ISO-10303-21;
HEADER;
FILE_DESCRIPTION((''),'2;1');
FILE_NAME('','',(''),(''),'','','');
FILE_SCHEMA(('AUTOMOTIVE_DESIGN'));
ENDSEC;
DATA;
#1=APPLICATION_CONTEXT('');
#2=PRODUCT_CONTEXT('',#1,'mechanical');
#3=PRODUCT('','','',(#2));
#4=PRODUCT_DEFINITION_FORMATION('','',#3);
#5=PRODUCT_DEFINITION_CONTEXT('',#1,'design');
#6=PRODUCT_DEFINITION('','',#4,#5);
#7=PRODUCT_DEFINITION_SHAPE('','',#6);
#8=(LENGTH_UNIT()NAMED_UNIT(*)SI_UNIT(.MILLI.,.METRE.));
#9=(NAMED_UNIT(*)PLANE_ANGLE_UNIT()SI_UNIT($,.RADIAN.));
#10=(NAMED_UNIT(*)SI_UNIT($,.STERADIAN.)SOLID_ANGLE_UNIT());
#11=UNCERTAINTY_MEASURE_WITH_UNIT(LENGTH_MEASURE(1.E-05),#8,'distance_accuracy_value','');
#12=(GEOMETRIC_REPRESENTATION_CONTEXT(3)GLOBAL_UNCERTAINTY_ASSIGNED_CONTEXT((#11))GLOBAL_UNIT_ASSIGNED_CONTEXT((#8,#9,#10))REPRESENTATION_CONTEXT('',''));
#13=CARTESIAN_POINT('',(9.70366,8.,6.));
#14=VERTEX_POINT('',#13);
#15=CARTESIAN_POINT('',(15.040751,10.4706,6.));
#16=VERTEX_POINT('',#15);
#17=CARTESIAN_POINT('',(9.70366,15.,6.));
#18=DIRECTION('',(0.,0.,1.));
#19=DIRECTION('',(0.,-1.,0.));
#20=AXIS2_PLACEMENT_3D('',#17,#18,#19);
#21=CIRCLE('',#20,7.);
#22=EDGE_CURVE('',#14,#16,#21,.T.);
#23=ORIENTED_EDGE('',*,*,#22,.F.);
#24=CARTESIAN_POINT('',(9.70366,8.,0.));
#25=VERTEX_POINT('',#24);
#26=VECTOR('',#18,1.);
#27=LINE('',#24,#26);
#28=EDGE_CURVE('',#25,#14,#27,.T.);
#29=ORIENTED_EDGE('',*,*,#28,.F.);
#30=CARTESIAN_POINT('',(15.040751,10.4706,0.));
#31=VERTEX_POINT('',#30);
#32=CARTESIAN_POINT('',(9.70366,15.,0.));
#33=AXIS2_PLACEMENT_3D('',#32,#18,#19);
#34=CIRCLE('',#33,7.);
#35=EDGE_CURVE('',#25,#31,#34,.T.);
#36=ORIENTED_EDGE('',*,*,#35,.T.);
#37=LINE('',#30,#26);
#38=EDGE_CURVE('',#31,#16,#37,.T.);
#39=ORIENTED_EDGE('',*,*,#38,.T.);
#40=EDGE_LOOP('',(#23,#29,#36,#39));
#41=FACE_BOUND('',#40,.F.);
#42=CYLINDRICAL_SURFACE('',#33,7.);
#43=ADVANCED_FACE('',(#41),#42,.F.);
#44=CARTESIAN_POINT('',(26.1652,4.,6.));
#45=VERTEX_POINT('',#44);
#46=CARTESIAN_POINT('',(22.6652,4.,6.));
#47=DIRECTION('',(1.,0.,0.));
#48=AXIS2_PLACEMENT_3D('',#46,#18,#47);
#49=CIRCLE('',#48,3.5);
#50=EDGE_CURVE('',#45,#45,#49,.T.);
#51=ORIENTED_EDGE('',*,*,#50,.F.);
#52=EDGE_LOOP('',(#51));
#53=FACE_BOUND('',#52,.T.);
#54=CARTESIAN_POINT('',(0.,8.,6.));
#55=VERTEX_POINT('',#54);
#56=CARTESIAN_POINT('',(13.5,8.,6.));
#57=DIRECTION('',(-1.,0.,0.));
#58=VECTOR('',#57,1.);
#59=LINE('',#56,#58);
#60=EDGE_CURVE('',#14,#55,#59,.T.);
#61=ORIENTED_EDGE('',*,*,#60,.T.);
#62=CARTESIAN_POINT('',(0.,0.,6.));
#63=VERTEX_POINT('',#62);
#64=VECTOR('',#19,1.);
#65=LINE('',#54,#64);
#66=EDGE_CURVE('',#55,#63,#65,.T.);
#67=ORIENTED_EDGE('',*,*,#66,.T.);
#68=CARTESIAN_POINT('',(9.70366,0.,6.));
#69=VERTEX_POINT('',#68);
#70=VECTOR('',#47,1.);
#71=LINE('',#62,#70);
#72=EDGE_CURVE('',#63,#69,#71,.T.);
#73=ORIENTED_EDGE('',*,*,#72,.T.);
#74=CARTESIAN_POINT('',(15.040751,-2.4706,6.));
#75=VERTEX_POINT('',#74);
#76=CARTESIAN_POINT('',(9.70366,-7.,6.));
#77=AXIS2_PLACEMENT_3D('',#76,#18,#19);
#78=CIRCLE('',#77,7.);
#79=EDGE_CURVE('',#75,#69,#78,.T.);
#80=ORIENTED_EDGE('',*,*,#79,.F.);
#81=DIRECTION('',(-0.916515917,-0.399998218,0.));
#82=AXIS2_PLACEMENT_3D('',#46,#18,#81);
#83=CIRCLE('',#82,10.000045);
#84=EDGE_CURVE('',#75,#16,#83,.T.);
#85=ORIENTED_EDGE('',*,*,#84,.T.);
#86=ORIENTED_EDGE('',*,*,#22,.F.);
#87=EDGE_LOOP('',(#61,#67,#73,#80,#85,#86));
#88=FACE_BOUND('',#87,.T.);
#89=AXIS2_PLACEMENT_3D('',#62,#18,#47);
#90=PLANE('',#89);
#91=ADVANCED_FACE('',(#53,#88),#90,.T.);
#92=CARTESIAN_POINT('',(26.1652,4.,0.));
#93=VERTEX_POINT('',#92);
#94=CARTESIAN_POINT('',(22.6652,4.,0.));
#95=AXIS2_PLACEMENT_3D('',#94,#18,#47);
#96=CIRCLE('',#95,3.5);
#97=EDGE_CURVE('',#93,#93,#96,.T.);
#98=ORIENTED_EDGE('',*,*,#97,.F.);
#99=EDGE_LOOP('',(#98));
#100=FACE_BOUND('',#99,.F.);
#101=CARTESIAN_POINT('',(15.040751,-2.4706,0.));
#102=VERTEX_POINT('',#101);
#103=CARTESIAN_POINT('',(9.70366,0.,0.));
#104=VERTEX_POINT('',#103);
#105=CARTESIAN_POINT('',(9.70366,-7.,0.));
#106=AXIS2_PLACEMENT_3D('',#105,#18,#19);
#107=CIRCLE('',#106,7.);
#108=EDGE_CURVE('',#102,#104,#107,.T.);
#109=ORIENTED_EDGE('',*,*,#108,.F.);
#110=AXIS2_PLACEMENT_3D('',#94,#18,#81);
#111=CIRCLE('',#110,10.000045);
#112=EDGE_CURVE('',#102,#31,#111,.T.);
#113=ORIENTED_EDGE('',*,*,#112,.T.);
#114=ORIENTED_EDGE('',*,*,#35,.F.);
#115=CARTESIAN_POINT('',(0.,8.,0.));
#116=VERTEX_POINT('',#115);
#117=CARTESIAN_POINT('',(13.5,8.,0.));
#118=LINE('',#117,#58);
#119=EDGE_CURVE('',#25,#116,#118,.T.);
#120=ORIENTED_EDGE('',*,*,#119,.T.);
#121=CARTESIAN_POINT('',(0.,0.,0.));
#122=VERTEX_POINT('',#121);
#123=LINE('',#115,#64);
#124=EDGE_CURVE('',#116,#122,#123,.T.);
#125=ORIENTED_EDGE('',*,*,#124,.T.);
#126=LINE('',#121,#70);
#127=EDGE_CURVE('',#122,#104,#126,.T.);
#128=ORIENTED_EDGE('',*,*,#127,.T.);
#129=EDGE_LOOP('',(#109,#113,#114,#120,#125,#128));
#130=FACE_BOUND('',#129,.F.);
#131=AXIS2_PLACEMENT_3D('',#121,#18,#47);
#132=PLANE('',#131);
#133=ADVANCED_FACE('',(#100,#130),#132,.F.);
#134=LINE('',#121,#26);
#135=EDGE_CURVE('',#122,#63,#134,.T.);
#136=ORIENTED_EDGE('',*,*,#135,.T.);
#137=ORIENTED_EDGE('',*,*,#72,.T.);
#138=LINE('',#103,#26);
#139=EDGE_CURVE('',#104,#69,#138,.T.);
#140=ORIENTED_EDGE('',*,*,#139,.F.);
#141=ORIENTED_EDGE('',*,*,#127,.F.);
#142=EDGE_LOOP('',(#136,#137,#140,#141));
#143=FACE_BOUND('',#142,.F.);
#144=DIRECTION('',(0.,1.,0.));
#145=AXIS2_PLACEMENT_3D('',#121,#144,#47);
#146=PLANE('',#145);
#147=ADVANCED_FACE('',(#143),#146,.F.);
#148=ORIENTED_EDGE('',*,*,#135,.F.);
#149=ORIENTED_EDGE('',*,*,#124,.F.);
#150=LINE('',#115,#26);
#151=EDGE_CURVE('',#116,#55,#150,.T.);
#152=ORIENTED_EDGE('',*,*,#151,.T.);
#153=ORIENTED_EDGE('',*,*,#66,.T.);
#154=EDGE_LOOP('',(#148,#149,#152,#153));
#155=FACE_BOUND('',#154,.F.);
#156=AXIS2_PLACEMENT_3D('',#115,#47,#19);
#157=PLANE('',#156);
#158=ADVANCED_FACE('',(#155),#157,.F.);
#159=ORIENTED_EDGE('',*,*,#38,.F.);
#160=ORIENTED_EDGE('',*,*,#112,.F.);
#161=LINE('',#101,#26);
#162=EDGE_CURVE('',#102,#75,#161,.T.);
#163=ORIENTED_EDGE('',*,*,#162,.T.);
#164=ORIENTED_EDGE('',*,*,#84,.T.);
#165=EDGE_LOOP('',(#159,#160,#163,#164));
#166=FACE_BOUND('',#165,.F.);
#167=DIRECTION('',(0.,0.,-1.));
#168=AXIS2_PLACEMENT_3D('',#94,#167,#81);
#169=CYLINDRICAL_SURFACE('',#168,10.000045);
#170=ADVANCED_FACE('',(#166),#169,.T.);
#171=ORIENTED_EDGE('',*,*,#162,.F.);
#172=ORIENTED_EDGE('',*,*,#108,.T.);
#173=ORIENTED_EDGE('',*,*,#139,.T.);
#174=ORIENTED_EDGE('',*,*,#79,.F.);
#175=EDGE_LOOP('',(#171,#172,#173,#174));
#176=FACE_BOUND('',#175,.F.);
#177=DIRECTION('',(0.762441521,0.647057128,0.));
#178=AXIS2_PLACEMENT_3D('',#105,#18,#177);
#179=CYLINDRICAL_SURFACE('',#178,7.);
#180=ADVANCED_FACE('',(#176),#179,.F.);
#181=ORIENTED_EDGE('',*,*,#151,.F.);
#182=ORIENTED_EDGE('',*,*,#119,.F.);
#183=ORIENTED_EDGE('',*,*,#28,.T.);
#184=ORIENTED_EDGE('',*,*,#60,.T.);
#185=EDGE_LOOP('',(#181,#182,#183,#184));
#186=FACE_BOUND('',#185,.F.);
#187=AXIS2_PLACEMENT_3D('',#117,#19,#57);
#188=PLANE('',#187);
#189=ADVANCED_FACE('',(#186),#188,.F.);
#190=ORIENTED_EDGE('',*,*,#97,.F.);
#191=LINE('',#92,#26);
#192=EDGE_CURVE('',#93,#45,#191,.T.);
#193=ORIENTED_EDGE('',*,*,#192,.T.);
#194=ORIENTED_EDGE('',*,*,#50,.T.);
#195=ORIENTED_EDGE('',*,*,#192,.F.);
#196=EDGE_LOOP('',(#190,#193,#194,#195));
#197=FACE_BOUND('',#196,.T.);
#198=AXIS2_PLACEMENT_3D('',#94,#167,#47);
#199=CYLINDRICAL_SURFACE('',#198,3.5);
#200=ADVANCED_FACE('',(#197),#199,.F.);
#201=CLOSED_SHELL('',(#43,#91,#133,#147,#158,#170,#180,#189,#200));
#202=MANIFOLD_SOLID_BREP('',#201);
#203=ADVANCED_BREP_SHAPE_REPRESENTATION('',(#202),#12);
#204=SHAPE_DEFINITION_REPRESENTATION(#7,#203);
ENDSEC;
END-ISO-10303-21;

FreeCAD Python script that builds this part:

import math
import FreeCAD as App
import Part
import Sketcher

V = App.Vector


def edges_at(feature, points):
    """Names of the edges that pass closest to the given points."""
    edges = feature.Shape.Edges
    near = lambda p: min(range(len(edges)), key=lambda i: edges[i].distToShape(Part.Vertex(*p))[0])
    return sorted({f"Edge{near(p) + 1}" for p in points})

doc = App.newDocument("Part")
body = doc.addObject("PartDesign::Body", "Body")

sketch1 = doc.addObject("Sketcher::SketchObject", "Sketch")
body.addObject(sketch1)
sketch1.AttachmentSupport = (doc.XY_Plane, [""])
sketch1.MapMode = "FlatFace"
sketch1.addGeometry(Part.LineSegment(V(0, 8, 0), V(0, 0, 0)), False)
sketch1.addGeometry(Part.LineSegment(V(0, 0, 0), V(13.5, 0, 0)), False)
sketch1.addGeometry(Part.ArcOfCircle(Part.Circle(V(22.6652, 4, 0), V(0, 0, 1), 10.000045), math.radians(-156.421933), math.radians(156.421933)), False)
sketch1.addGeometry(Part.LineSegment(V(13.5, 8, 0), V(0, 8, 0)), False)
sketch1.addGeometry(Part.Circle(V(22.6652, 4, 0), V(0, 0, 1), 3.5), False)
sketch1.addConstraint(Sketcher.Constraint("Coincident", 0, 2, 1, 1))
sketch1.addConstraint(Sketcher.Constraint("Coincident", 1, 2, 2, 1))
sketch1.addConstraint(Sketcher.Constraint("Coincident", 2, 2, 3, 1))
sketch1.addConstraint(Sketcher.Constraint("Coincident", 3, 2, 0, 1))
sketch1.addConstraint(Sketcher.Constraint("Vertical", 0))
sketch1.addConstraint(Sketcher.Constraint("Horizontal", 1))
sketch1.addConstraint(Sketcher.Constraint("Horizontal", 3))
sketch1.addConstraint(Sketcher.Constraint("Coincident", 0, 2, -1, 1))
sketch1.addConstraint(Sketcher.Constraint("Coincident", 4, 3, 2, 3))
sketch1.addConstraint(Sketcher.Constraint("Vertical", 1, 2, 2, 2))
sketch1.addConstraint(Sketcher.Constraint("Diameter", 4, 7.0))
sketch1.addConstraint(Sketcher.Constraint("Radius", 2, 10.0))
sketch1.addConstraint(Sketcher.Constraint("DistanceY", 0, 2, 0, 1, 8.0))
sketch1.addConstraint(Sketcher.Constraint("DistanceX", 1, 1, 1, 2, 13.5))
pad1 = doc.addObject("PartDesign::Pad", "Pad")
body.addObject(pad1)
pad1.Profile = sketch1
pad1.Length = 6
doc.recompute()

fillet = doc.addObject("PartDesign::Fillet", "Fillet")
body.addObject(fillet)
fillet.Base = (pad1, edges_at(pad1, [(13.5, 8, 3), (13.5, 0, 3)]))
fillet.Radius = 7

doc.recompute()
